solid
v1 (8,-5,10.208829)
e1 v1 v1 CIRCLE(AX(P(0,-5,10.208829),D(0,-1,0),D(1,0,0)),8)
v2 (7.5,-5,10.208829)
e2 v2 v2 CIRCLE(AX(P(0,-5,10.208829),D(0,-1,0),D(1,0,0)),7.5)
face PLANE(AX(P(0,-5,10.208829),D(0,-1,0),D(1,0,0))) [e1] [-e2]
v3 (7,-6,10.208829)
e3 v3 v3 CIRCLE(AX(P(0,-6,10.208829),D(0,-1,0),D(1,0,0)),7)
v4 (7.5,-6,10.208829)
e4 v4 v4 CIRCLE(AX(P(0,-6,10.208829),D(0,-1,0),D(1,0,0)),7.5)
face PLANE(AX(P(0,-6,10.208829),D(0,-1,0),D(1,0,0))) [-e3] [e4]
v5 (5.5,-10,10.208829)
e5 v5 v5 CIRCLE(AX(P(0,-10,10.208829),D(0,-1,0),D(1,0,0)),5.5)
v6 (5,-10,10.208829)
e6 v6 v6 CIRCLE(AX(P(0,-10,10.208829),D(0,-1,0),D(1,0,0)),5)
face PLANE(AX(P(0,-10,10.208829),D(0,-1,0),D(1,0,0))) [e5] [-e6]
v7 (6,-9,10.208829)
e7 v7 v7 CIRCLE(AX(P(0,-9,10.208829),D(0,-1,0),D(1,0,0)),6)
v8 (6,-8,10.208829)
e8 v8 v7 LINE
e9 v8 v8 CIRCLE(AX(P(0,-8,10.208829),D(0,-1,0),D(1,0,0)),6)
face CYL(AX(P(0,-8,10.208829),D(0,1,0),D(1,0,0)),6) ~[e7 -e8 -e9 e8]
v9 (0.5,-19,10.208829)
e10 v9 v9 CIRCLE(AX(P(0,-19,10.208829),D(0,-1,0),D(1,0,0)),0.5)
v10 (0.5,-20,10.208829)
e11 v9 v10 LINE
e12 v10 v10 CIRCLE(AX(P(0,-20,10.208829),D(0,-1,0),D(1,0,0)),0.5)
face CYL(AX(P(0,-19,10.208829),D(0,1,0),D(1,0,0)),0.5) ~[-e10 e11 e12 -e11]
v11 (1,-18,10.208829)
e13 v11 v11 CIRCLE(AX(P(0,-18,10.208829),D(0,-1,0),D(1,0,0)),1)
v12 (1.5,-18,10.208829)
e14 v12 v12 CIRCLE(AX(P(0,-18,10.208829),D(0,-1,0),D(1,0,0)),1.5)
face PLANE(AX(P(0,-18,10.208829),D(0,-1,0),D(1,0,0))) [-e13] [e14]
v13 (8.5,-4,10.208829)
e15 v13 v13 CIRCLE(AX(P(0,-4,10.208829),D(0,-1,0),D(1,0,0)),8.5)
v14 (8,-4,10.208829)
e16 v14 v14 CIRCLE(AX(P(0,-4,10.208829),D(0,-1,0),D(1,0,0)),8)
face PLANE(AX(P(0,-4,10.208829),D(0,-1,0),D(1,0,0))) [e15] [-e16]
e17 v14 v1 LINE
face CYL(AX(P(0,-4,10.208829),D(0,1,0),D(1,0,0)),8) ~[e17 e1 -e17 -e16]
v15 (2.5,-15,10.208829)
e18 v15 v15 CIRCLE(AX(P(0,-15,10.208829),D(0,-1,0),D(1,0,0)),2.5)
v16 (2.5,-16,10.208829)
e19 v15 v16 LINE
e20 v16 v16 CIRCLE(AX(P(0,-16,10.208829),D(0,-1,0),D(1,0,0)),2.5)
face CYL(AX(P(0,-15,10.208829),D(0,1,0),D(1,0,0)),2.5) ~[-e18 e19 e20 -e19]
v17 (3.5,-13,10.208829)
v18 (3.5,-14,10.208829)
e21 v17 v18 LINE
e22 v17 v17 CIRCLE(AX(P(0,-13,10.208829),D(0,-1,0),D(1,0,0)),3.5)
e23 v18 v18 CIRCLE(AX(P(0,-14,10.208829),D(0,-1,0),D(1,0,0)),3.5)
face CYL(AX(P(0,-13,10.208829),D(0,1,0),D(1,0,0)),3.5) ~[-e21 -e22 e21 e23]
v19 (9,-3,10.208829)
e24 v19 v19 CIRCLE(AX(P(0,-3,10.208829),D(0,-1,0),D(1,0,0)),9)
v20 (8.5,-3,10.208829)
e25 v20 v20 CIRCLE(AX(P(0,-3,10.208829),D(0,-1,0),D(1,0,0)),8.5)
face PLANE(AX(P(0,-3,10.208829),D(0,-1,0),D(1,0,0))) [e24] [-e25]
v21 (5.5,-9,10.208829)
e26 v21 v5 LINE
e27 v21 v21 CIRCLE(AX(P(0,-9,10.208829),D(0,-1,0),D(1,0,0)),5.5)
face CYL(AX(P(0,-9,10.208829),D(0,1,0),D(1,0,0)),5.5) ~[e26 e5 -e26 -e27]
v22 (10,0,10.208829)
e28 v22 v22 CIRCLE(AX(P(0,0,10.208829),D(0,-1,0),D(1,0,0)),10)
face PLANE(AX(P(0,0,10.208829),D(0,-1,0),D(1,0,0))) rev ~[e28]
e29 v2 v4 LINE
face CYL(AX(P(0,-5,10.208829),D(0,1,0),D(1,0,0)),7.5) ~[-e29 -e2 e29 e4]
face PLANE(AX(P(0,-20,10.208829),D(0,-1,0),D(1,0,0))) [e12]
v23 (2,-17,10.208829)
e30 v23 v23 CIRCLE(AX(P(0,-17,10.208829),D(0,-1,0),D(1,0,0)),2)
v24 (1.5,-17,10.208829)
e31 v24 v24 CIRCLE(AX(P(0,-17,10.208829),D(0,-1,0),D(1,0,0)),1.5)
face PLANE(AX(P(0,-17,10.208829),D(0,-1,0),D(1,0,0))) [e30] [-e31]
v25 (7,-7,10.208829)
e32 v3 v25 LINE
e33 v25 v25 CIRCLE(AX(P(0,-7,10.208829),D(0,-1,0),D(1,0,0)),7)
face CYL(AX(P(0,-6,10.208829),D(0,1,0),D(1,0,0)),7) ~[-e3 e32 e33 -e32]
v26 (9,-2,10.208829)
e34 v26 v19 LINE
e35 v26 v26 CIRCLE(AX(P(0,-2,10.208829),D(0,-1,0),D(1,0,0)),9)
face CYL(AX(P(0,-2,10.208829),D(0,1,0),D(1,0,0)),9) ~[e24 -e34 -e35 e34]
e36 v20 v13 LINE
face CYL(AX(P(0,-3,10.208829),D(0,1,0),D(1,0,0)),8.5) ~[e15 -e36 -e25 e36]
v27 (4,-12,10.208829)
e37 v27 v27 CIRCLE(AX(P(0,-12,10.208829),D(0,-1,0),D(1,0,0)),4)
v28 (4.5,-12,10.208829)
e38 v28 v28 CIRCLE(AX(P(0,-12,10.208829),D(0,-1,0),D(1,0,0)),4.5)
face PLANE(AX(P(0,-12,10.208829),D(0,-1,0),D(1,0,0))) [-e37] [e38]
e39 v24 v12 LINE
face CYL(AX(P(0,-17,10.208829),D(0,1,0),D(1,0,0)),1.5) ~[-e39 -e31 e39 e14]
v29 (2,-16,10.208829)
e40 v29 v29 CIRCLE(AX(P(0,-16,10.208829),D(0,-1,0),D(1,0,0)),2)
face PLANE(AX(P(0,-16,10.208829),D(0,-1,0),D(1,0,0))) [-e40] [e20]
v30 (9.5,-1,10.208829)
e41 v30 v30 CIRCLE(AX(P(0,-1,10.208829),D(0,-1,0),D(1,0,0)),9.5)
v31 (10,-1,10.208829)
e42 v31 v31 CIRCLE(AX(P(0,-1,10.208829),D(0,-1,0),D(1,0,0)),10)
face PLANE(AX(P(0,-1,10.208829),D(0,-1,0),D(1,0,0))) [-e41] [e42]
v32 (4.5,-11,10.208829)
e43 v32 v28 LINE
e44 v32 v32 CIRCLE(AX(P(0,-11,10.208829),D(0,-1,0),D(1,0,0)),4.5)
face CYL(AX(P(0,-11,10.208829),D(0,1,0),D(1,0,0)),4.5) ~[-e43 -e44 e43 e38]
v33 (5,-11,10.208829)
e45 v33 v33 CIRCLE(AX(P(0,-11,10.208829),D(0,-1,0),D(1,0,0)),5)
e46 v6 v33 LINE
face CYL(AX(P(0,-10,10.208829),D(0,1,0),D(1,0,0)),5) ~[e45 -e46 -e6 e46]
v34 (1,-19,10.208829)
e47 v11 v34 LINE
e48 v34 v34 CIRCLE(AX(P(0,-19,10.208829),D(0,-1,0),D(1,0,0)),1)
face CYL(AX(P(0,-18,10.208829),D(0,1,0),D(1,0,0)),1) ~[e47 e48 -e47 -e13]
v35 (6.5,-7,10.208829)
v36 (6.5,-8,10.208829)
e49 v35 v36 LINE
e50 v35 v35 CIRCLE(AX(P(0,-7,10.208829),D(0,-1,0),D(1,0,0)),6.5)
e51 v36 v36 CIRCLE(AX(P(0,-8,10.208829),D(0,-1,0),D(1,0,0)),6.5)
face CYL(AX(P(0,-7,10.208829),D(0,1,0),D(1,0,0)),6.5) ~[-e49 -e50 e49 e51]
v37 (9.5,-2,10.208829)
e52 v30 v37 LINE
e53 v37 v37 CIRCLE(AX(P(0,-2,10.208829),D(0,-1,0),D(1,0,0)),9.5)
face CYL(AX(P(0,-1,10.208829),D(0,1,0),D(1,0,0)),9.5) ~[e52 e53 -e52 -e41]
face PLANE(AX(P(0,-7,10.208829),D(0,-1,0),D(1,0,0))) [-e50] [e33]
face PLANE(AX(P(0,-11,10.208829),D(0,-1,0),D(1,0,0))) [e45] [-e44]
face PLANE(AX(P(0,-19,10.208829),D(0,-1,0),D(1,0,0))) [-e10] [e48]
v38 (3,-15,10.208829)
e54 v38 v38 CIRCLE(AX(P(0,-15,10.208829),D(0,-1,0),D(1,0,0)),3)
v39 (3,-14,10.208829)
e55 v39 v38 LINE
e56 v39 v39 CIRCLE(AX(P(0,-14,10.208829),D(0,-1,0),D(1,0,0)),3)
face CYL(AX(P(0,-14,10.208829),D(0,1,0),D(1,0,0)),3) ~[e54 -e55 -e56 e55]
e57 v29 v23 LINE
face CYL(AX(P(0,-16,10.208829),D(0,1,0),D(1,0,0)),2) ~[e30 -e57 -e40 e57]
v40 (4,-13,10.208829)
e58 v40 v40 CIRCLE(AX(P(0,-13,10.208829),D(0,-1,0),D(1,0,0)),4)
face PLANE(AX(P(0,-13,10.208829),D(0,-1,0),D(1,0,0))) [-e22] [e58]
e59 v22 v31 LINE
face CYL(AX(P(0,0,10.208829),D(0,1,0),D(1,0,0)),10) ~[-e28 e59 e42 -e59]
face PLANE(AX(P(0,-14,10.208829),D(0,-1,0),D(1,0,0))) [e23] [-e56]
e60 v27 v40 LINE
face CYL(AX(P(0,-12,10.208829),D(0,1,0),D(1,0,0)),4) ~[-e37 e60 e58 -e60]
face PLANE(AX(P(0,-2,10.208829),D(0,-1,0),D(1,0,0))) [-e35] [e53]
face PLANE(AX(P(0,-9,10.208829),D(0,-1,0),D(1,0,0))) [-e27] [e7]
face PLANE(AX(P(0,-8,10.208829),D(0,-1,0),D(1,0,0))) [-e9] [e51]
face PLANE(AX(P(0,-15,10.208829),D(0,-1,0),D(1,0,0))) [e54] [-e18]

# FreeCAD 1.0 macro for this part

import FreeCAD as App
import Part
import Sketcher

V = App.Vector
Q = App.Units.Quantity

doc = App.newDocument("Part")
params = doc.addObject("Spreadsheet::Sheet", "Params")
for row, (alias, value) in enumerate([
    ("sketch1_diameter", "20 mm"),
    ("pad1_length", "1 mm"),
    ("sketch2_diameter", "19 mm"),
    ("pad2_length", "1 mm"),
    ("sketch3_diameter", "18 mm"),
    ("pad3_length", "1 mm"),
    ("sketch4_diameter", "17 mm"),
    ("pad4_length", "1 mm"),
    ("sketch5_diameter", "16 mm"),
    ("pad5_length", "1 mm"),
    ("sketch6_diameter", "15 mm"),
    ("pad6_length", "1 mm"),
    ("sketch7_diameter", "14 mm"),
    ("pad7_length", "1 mm"),
    ("sketch8_diameter", "13 mm"),
    ("pad8_length", "1 mm"),
    ("sketch9_diameter", "12 mm"),
    ("pad9_length", "1 mm"),
    ("sketch10_diameter", "11 mm"),
    ("pad10_length", "1 mm"),
    ("sketch11_diameter", "10 mm"),
    ("pad11_length", "1 mm"),
    ("sketch12_diameter", "9 mm"),
    ("pad12_length", "1 mm"),
    ("sketch13_diameter", "8 mm"),
    ("pad13_length", "1 mm"),
    ("sketch14_diameter", "7 mm"),
    ("pad14_length", "1 mm"),
    ("sketch15_diameter", "6 mm"),
    ("pad15_length", "1 mm"),
    ("sketch16_diameter", "5 mm"),
    ("pad16_length", "1 mm"),
    ("sketch17_diameter", "4 mm"),
    ("pad17_length", "1 mm"),
    ("sketch18_diameter", "3 mm"),
    ("pad18_length", "1 mm"),
    ("sketch19_diameter", "2 mm"),
    ("pad19_length", "1 mm"),
    ("sketch20_diameter", "1 mm"),
    ("pad20_length", "1 mm"),
], start=1):
    params.set(f"A{row}", alias)
    params.set(f"B{row}", "=" + value)
    params.setAlias(f"B{row}", alias)

body = doc.addObject("PartDesign::Body", "Body")

sketch1 = body.newObject("Sketcher::SketchObject", "Sketch")
sketch1.AttachmentSupport = (doc.getObject("XZ_Plane"), [""])
sketch1.MapMode = "FlatFace"
sketch1.addGeometry(Part.Circle(V(0, 10, 0), V(0, 0, 1), 10), False)
sketch1.addConstraint(Sketcher.Constraint("PointOnObject", 0, 3, -2))
sketch1.addConstraint(Sketcher.Constraint("Diameter", 0, Q("20 mm")))
sketch1.addConstraint(Sketcher.Constraint("DistanceY", -1, 1, 0, 3, Q("10.208829 mm")))
sketch1.setExpression("Constraints[1]", "Params.sketch1_diameter")
pad1 = body.newObject("PartDesign::Pad", "Pad")
pad1.Profile = sketch1
pad1.setExpression("Length", "Params.pad1_length")

sketch2 = body.newObject("Sketcher::SketchObject", "Sketch001")
sketch2.AttachmentSupport = (doc.getObject("XZ_Plane"), [""])
sketch2.MapMode = "FlatFace"
sketch2.AttachmentOffset = App.Placement(V(0, 0, 1), App.Rotation())
sketch2.addGeometry(Part.Circle(V(0, 10, 0), V(0, 0, 1), 10), False)
sketch2.addConstraint(Sketcher.Constraint("PointOnObject", 0, 3, -2))
sketch2.addConstraint(Sketcher.Constraint("Diameter", 0, Q("19 mm")))
sketch2.addConstraint(Sketcher.Constraint("DistanceY", -1, 1, 0, 3, Q("10.208829 mm")))
sketch2.setExpression("Constraints[1]", "Params.sketch2_diameter")
pad2 = body.newObject("PartDesign::Pad", "Pad001")
pad2.Profile = sketch2
pad2.setExpression("Length", "Params.pad2_length")

sketch3 = body.newObject("Sketcher::SketchObject", "Sketch002")
sketch3.AttachmentSupport = (doc.getObject("XZ_Plane"), [""])
sketch3.MapMode = "FlatFace"
sketch3.AttachmentOffset = App.Placement(V(0, 0, 2), App.Rotation())
sketch3.addGeometry(Part.Circle(V(0, 10, 0), V(0, 0, 1), 9), False)
sketch3.addConstraint(Sketcher.Constraint("PointOnObject", 0, 3, -2))
sketch3.addConstraint(Sketcher.Constraint("Diameter", 0, Q("18 mm")))
sketch3.addConstraint(Sketcher.Constraint("DistanceY", -1, 1, 0, 3, Q("10.208829 mm")))
sketch3.setExpression("Constraints[1]", "Params.sketch3_diameter")
pad3 = body.newObject("PartDesign::Pad", "Pad002")
pad3.Profile = sketch3
pad3.setExpression("Length", "Params.pad3_length")

sketch4 = body.newObject("Sketcher::SketchObject", "Sketch003")
sketch4.AttachmentSupport = (doc.getObject("XZ_Plane"), [""])
sketch4.MapMode = "FlatFace"
sketch4.AttachmentOffset = App.Placement(V(0, 0, 3), App.Rotation())
sketch4.addGeometry(Part.Circle(V(0, 10, 0), V(0, 0, 1), 8), False)
sketch4.addConstraint(Sketcher.Constraint("PointOnObject", 0, 3, -2))
sketch4.addConstraint(Sketcher.Constraint("Diameter", 0, Q("17 mm")))
sketch4.addConstraint(Sketcher.Constraint("DistanceY", -1, 1, 0, 3, Q("10.208829 mm")))
sketch4.setExpression("Constraints[1]", "Params.sketch4_diameter")
pad4 = body.newObject("PartDesign::Pad", "Pad003")
pad4.Profile = sketch4
pad4.setExpression("Length", "Params.pad4_length")

sketch5 = body.newObject("Sketcher::SketchObject", "Sketch004")
sketch5.AttachmentSupport = (doc.getObject("XZ_Plane"), [""])
sketch5.MapMode = "FlatFace"
sketch5.AttachmentOffset = App.Placement(V(0, 0, 4), App.Rotation())
sketch5.addGeometry(Part.Circle(V(0, 10, 0), V(0, 0, 1), 8), False)
sketch5.addConstraint(Sketcher.Constraint("PointOnObject", 0, 3, -2))
sketch5.addConstraint(Sketcher.Constraint("Diameter", 0, Q("16 mm")))
sketch5.addConstraint(Sketcher.Constraint("DistanceY", -1, 1, 0, 3, Q("10.208829 mm")))
sketch5.setExpression("Constraints[1]", "Params.sketch5_diameter")
pad5 = body.newObject("PartDesign::Pad", "Pad004")
pad5.Profile = sketch5
pad5.setExpression("Length", "Params.pad5_length")

sketch6 = body.newObject("Sketcher::SketchObject", "Sketch005")
sketch6.AttachmentSupport = (doc.getObject("XZ_Plane"), [""])
sketch6.MapMode = "FlatFace"
sketch6.AttachmentOffset = App.Placement(V(0, 0, 5), App.Rotation())
sketch6.addGeometry(Part.Circle(V(0, 10, 0), V(0, 0, 1), 8), False)
sketch6.addConstraint(Sketcher.Constraint("PointOnObject", 0, 3, -2))
sketch6.addConstraint(Sketcher.Constraint("Diameter", 0, Q("15 mm")))
sketch6.addConstraint(Sketcher.Constraint("DistanceY", -1, 1, 0, 3, Q("10.208829 mm")))
sketch6.setExpression("Constraints[1]", "Params.sketch6_diameter")
pad6 = body.newObject("PartDesign::Pad", "Pad005")
pad6.Profile = sketch6
pad6.setExpression("Length", "Params.pad6_length")

sketch7 = body.newObject("Sketcher::SketchObject", "Sketch006")
sketch7.AttachmentSupport = (doc.getObject("XZ_Plane"), [""])
sketch7.MapMode = "FlatFace"
sketch7.AttachmentOffset = App.Placement(V(0, 0, 6), App.Rotation())
sketch7.addGeometry(Part.Circle(V(0, 10, 0), V(0, 0, 1), 7), False)
sketch7.addConstraint(Sketcher.Constraint("PointOnObject", 0, 3, -2))
sketch7.addConstraint(Sketcher.Constraint("Diameter", 0, Q("14 mm")))
sketch7.addConstraint(Sketcher.Constraint("DistanceY", -1, 1, 0, 3, Q("10.208829 mm")))
sketch7.setExpression("Constraints[1]", "Params.sketch7_diameter")
pad7 = body.newObject("PartDesign::Pad", "Pad006")
pad7.Profile = sketch7
pad7.setExpression("Length", "Params.pad7_length")

sketch8 = body.newObject("Sketcher::SketchObject", "Sketch007")
sketch8.AttachmentSupport = (doc.getObject("XZ_Plane"), [""])
sketch8.MapMode = "FlatFace"
sketch8.AttachmentOffset = App.Placement(V(0, 0, 7), App.Rotation())
sketch8.addGeometry(Part.Circle(V(0, 10, 0), V(0, 0, 1), 6), False)
sketch8.addConstraint(Sketcher.Constraint("PointOnObject", 0, 3, -2))
sketch8.addConstraint(Sketcher.Constraint("Diameter", 0, Q("13 mm")))
sketch8.addConstraint(Sketcher.Constraint("DistanceY", -1, 1, 0, 3, Q("10.208829 mm")))
sketch8.setExpression("Constraints[1]", "Params.sketch8_diameter")
pad8 = body.newObject("PartDesign::Pad", "Pad007")
pad8.Profile = sketch8
pad8.setExpression("Length", "Params.pad8_length")

sketch9 = body.newObject("Sketcher::SketchObject", "Sketch008")
sketch9.AttachmentSupport = (doc.getObject("XZ_Plane"), [""])
sketch9.MapMode = "FlatFace"
sketch9.AttachmentOffset = App.Placement(V(0, 0, 8), App.Rotation())
sketch9.addGeometry(Part.Circle(V(0, 10, 0), V(0, 0, 1), 6), False)
sketch9.addConstraint(Sketcher.Constraint("PointOnObject", 0, 3, -2))
sketch9.addConstraint(Sketcher.Constraint("Diameter", 0, Q("12 mm")))
sketch9.addConstraint(Sketcher.Constraint("DistanceY", -1, 1, 0, 3, Q("10.208829 mm")))
sketch9.setExpression("Constraints[1]", "Params.sketch9_diameter")
pad9 = body.newObject("PartDesign::Pad", "Pad008")
pad9.Profile = sketch9
pad9.setExpression("Length", "Params.pad9_length")

sketch10 = body.newObject("Sketcher::SketchObject", "Sketch009")
sketch10.AttachmentSupport = (doc.getObject("XZ_Plane"), [""])
sketch10.MapMode = "FlatFace"
sketch10.AttachmentOffset = App.Placement(V(0, 0, 9), App.Rotation())
sketch10.addGeometry(Part.Circle(V(0, 10, 0), V(0, 0, 1), 6), False)
sketch10.addConstraint(Sketcher.Constraint("PointOnObject", 0, 3, -2))
sketch10.addConstraint(Sketcher.Constraint("Diameter", 0, Q("11 mm")))
sketch10.addConstraint(Sketcher.Constraint("DistanceY", -1, 1, 0, 3, Q("10.208829 mm")))
sketch10.setExpression("Constraints[1]", "Params.sketch10_diameter")
pad10 = body.newObject("PartDesign::Pad", "Pad009")
pad10.Profile = sketch10
pad10.setExpression("Length", "Params.pad10_length")

sketch11 = body.newObject("Sketcher::SketchObject", "Sketch010")
sketch11.AttachmentSupport = (doc.getObject("XZ_Plane"), [""])
sketch11.MapMode = "FlatFace"
sketch11.AttachmentOffset = App.Placement(V(0, 0, 10), App.Rotation())
sketch11.addGeometry(Part.Circle(V(0, 10, 0), V(0, 0, 1), 5), False)
sketch11.addConstraint(Sketcher.Constraint("PointOnObject", 0, 3, -2))
sketch11.addConstraint(Sketcher.Constraint("Diameter", 0, Q("10 mm")))
sketch11.addConstraint(Sketcher.Constraint("DistanceY", -1, 1, 0, 3, Q("10.208829 mm")))
sketch11.setExpression("Constraints[1]", "Params.sketch11_diameter")
pad11 = body.newObject("PartDesign::Pad", "Pad010")
pad11.Profile = sketch11
pad11.setExpression("Length", "Params.pad11_length")

sketch12 = body.newObject("Sketcher::SketchObject", "Sketch011")
sketch12.AttachmentSupport = (doc.getObject("XZ_Plane"), [""])
sketch12.MapMode = "FlatFace"
sketch12.AttachmentOffset = App.Placement(V(0, 0, 11), App.Rotation())
sketch12.addGeometry(Part.Circle(V(0, 10.2, 0), V(0, 0, 1), 4.5), False)
sketch12.addConstraint(Sketcher.Constraint("PointOnObject", 0, 3, -2))
sketch12.addConstraint(Sketcher.Constraint("Diameter", 0, Q("9 mm")))
sketch12.addConstraint(Sketcher.Constraint("DistanceY", -1, 1, 0, 3, Q("10.208829 mm")))
sketch12.setExpression("Constraints[1]", "Params.sketch12_diameter")
pad12 = body.newObject("PartDesign::Pad", "Pad011")
pad12.Profile = sketch12
pad12.setExpression("Length", "Params.pad12_length")

sketch13 = body.newObject("Sketcher::SketchObject", "Sketch012")
sketch13.AttachmentSupport = (doc.getObject("XZ_Plane"), [""])
sketch13.MapMode = "FlatFace"
sketch13.AttachmentOffset = App.Placement(V(0, 0, 12), App.Rotation())
sketch13.addGeometry(Part.Circle(V(0, 10.2, 0), V(0, 0, 1), 4), False)
sketch13.addConstraint(Sketcher.Constraint("PointOnObject", 0, 3, -2))
sketch13.addConstraint(Sketcher.Constraint("Diameter", 0, Q("8 mm")))
sketch13.addConstraint(Sketcher.Constraint("DistanceY", -1, 1, 0, 3, Q("10.208829 mm")))
sketch13.setExpression("Constraints[1]", "Params.sketch13_diameter")
pad13 = body.newObject("PartDesign::Pad", "Pad012")
pad13.Profile = sketch13
pad13.setExpression("Length", "Params.pad13_length")

sketch14 = body.newObject("Sketcher::SketchObject", "Sketch013")
sketch14.AttachmentSupport = (doc.getObject("XZ_Plane"), [""])
sketch14.MapMode = "FlatFace"
sketch14.AttachmentOffset = App.Placement(V(0, 0, 13), App.Rotation())
sketch14.addGeometry(Part.Circle(V(0, 10.2, 0), V(0, 0, 1), 3.5), False)
sketch14.addConstraint(Sketcher.Constraint("PointOnObject", 0, 3, -2))
sketch14.addConstraint(Sketcher.Constraint("Diameter", 0, Q("7 mm")))
sketch14.addConstraint(Sketcher.Constraint("DistanceY", -1, 1, 0, 3, Q("10.208829 mm")))
sketch14.setExpression("Constraints[1]", "Params.sketch14_diameter")
pad14 = body.newObject("PartDesign::Pad", "Pad013")
pad14.Profile = sketch14
pad14.setExpression("Length", "Params.pad14_length")

sketch15 = body.newObject("Sketcher::SketchObject", "Sketch014")
sketch15.AttachmentSupport = (doc.getObject("XZ_Plane"), [""])
sketch15.MapMode = "FlatFace"
sketch15.AttachmentOffset = App.Placement(V(0, 0, 14), App.Rotation())
sketch15.addGeometry(Part.Circle(V(0, 10.2, 0), V(0, 0, 1), 3), False)
sketch15.addConstraint(Sketcher.Constraint("PointOnObject", 0, 3, -2))
sketch15.addConstraint(Sketcher.Constraint("Diameter", 0, Q("6 mm")))
sketch15.addConstraint(Sketcher.Constraint("DistanceY", -1, 1, 0, 3, Q("10.208829 mm")))
sketch15.setExpression("Constraints[1]", "Params.sketch15_diameter")
pad15 = body.newObject("PartDesign::Pad", "Pad014")
pad15.Profile = sketch15
pad15.setExpression("Length", "Params.pad15_length")

sketch16 = body.newObject("Sketcher::SketchObject", "Sketch015")
sketch16.AttachmentSupport = (doc.getObject("XZ_Plane"), [""])
sketch16.MapMode = "FlatFace"
sketch16.AttachmentOffset = App.Placement(V(0, 0, 15), App.Rotation())
sketch16.addGeometry(Part.Circle(V(0, 10.2, 0), V(0, 0, 1), 2.5), False)
sketch16.addConstraint(Sketcher.Constraint("PointOnObject", 0, 3, -2))
sketch16.addConstraint(Sketcher.Constraint("Diameter", 0, Q("5 mm")))
sketch16.addConstraint(Sketcher.Constraint("DistanceY", -1, 1, 0, 3, Q("10.208829 mm")))
sketch16.setExpression("Constraints[1]", "Params.sketch16_diameter")
pad16 = body.newObject("PartDesign::Pad", "Pad015")
pad16.Profile = sketch16
pad16.setExpression("Length", "Params.pad16_length")

sketch17 = body.newObject("Sketcher::SketchObject", "Sketch016")
sketch17.AttachmentSupport = (doc.getObject("XZ_Plane"), [""])
sketch17.MapMode = "FlatFace"
sketch17.AttachmentOffset = App.Placement(V(0, 0, 16), App.Rotation())
sketch17.addGeometry(Part.Circle(V(0, 10.2, 0), V(0, 0, 1), 2), False)
sketch17.addConstraint(Sketcher.Constraint("PointOnObject", 0, 3, -2))
sketch17.addConstraint(Sketcher.Constraint("Diameter", 0, Q("4 mm")))
sketch17.addConstraint(Sketcher.Constraint("DistanceY", -1, 1, 0, 3, Q("10.208829 mm")))
sketch17.setExpression("Constraints[1]", "Params.sketch17_diameter")
pad17 = body.newObject("PartDesign::Pad", "Pad016")
pad17.Profile = sketch17
pad17.setExpression("Length", "Params.pad17_length")

sketch18 = body.newObject("Sketcher::SketchObject", "Sketch017")
sketch18.AttachmentSupport = (doc.getObject("XZ_Plane"), [""])
sketch18.MapMode = "FlatFace"
sketch18.AttachmentOffset = App.Placement(V(0, 0, 17), App.Rotation())
sketch18.addGeometry(Part.Circle(V(0, 10.2, 0), V(0, 0, 1), 1.5), False)
sketch18.addConstraint(Sketcher.Constraint("PointOnObject", 0, 3, -2))
sketch18.addConstraint(Sketcher.Constraint("Diameter", 0, Q("3 mm")))
sketch18.addConstraint(Sketcher.Constraint("DistanceY", -1, 1, 0, 3, Q("10.208829 mm")))
sketch18.setExpression("Constraints[1]", "Params.sketch18_diameter")
pad18 = body.newObject("PartDesign::Pad", "Pad017")
pad18.Profile = sketch18
pad18.setExpression("Length", "Params.pad18_length")

sketch19 = body.newObject("Sketcher::SketchObject", "Sketch018")
sketch19.AttachmentSupport = (doc.getObject("XZ_Plane"), [""])
sketch19.MapMode = "FlatFace"
sketch19.AttachmentOffset = App.Placement(V(0, 0, 18), App.Rotation())
sketch19.addGeometry(Part.Circle(V(0, 10.2, 0), V(0, 0, 1), 1), False)
sketch19.addConstraint(Sketcher.Constraint("PointOnObject", 0, 3, -2))
sketch19.addConstraint(Sketcher.Constraint("Diameter", 0, Q("2 mm")))
sketch19.addConstraint(Sketcher.Constraint("DistanceY", -1, 1, 0, 3, Q("10.208829 mm")))
sketch19.setExpression("Constraints[1]", "Params.sketch19_diameter")
pad19 = body.newObject("PartDesign::Pad", "Pad018")
pad19.Profile = sketch19
pad19.setExpression("Length", "Params.pad19_length")

sketch20 = body.newObject("Sketcher::SketchObject", "Sketch019")
sketch20.AttachmentSupport = (doc.getObject("XZ_Plane"), [""])
sketch20.MapMode = "FlatFace"
sketch20.AttachmentOffset = App.Placement(V(0, 0, 19), App.Rotation())
sketch20.addGeometry(Part.Circle(V(0, 10.2, 0), V(0, 0, 1), 0.5), False)
sketch20.addConstraint(Sketcher.Constraint("PointOnObject", 0, 3, -2))
sketch20.addConstraint(Sketcher.Constraint("Diameter", 0, Q("1 mm")))
sketch20.addConstraint(Sketcher.Constraint("DistanceY", -1, 1, 0, 3, Q("10.208829 mm")))
sketch20.setExpression("Constraints[1]", "Params.sketch20_diameter")
pad20 = body.newObject("PartDesign::Pad", "Pad019")
pad20.Profile = sketch20
pad20.setExpression("Length", "Params.pad20_length")

doc.recompute()
